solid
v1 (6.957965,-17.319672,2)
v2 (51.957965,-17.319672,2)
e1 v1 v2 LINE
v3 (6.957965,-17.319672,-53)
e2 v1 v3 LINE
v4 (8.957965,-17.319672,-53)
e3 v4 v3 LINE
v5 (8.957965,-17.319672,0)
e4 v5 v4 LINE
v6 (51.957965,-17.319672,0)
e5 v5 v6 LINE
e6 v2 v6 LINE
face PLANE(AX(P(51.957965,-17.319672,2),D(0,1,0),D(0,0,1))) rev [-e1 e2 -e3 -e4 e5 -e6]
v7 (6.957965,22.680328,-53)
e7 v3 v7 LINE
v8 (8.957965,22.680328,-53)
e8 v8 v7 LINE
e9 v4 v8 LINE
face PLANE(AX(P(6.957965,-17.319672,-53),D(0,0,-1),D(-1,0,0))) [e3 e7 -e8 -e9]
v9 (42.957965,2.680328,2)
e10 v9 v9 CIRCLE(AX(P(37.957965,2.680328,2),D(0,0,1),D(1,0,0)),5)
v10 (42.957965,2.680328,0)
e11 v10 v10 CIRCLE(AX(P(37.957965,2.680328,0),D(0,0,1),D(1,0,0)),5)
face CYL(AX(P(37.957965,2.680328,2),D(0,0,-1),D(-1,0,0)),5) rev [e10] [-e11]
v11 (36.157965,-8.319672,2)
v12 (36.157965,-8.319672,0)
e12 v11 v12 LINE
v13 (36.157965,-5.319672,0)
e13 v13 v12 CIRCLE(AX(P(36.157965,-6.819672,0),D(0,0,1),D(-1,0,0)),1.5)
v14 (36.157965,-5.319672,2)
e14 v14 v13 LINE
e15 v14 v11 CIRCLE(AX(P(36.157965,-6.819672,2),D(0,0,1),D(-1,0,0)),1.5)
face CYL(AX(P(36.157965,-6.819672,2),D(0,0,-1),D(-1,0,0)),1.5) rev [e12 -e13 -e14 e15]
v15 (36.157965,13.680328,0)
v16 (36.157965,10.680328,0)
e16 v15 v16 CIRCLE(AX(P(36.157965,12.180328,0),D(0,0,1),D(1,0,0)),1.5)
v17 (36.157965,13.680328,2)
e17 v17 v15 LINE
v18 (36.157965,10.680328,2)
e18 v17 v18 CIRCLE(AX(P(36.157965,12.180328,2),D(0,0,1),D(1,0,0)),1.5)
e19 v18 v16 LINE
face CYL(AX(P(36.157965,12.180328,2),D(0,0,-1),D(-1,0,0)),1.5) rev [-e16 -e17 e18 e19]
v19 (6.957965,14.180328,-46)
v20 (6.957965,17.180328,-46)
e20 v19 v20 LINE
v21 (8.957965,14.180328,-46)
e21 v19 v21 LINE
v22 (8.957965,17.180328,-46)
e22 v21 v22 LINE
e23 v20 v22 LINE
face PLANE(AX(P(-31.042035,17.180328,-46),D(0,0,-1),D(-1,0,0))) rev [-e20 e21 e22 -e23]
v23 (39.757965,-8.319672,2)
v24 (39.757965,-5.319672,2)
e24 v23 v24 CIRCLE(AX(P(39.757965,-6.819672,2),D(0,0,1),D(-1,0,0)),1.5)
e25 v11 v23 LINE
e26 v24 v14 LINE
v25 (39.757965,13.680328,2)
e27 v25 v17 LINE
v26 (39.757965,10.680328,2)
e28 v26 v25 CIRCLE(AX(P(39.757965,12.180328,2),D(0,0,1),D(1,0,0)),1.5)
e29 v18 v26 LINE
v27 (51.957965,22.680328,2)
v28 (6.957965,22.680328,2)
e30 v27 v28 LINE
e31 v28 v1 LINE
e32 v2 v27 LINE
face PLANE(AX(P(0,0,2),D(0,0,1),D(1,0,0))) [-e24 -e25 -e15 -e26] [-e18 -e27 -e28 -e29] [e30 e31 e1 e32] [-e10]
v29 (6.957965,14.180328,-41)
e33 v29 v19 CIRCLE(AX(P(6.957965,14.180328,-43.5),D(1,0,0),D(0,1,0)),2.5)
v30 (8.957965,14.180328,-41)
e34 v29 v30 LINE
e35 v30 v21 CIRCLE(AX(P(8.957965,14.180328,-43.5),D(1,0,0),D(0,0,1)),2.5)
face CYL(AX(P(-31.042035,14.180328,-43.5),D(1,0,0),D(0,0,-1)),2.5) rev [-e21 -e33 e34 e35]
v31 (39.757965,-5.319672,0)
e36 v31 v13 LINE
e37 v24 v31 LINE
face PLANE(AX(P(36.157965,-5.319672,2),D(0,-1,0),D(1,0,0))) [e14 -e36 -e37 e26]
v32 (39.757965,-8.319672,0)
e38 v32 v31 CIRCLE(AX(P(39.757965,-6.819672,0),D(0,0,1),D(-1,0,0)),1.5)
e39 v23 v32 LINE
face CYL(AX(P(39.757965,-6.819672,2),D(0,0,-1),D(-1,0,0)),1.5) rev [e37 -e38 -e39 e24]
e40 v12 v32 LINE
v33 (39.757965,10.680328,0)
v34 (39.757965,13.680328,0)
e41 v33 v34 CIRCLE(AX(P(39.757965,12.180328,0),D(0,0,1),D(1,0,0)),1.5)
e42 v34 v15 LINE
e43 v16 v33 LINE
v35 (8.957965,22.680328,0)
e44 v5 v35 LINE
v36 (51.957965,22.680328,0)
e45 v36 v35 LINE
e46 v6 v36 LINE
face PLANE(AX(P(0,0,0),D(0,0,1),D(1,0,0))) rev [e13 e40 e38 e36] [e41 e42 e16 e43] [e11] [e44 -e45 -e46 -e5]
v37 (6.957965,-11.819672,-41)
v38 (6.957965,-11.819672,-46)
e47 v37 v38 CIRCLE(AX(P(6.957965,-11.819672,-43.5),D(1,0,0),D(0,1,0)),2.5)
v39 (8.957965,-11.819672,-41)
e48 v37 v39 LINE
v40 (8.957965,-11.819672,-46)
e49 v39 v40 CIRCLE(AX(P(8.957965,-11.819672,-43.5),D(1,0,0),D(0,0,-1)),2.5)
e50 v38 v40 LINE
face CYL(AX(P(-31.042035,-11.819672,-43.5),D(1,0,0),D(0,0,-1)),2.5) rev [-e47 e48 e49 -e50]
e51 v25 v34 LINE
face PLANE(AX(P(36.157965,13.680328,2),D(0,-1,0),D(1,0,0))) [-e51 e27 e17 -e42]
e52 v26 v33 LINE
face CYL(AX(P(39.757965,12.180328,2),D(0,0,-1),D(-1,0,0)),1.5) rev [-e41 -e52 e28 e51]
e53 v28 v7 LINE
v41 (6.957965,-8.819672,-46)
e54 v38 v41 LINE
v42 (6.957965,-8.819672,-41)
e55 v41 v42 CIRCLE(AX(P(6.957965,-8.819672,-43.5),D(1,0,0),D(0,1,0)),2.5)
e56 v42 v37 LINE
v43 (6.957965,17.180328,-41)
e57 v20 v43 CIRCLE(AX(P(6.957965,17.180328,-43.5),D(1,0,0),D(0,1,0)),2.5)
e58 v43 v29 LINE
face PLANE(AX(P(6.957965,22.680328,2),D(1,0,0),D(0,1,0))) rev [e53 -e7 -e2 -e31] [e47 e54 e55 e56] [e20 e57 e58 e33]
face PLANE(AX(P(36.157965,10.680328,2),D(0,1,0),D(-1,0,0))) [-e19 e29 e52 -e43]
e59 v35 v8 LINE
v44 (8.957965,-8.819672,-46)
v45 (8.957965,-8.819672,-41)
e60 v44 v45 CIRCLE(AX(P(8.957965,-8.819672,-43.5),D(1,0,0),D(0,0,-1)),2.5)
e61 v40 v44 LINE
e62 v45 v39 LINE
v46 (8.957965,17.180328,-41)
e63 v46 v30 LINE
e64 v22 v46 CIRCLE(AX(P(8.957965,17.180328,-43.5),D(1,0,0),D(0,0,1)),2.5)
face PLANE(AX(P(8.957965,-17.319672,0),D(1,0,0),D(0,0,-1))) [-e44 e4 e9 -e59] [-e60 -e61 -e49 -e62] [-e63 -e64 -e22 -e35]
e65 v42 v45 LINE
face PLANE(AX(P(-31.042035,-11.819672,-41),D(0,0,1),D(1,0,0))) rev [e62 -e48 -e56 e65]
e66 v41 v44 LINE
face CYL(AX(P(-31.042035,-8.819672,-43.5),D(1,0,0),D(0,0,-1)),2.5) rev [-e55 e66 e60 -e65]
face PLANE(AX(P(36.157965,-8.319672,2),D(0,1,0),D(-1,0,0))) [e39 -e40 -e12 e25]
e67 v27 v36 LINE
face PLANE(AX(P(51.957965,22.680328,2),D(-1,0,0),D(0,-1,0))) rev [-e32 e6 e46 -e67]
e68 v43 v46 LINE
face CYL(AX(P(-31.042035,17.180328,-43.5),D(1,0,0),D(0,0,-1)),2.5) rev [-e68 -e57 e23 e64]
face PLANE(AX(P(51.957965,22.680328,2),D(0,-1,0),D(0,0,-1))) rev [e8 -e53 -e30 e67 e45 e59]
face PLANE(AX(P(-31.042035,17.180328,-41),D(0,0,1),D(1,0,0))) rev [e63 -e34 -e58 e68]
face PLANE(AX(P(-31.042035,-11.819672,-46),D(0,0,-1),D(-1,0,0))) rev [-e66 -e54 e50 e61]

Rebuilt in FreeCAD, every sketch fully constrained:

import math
import FreeCAD as App
import Part
import Sketcher

V = App.Vector
Q = App.Units.Quantity


def add_polygon(sketch, points):
    """Adds a closed chain of lines whose ends are joined by coincident constraints."""
    first, n = sketch.GeometryCount, len(points)
    for a, b in zip(points, points[1:] + points[:1]):
        sketch.addGeometry(Part.LineSegment(App.Vector(*a, 0), App.Vector(*b, 0)), False)
    for i in range(n):
        sketch.addConstraint(Sketcher.Constraint("Coincident", first + i, 2, first + (i + 1) % n, 1))

doc = App.newDocument("Part")
body = doc.addObject("PartDesign::Body", "Body")

sketch1 = doc.addObject("Sketcher::SketchObject", "Sketch")
body.addObject(sketch1)
sketch1.AttachmentSupport = (doc.XY_Plane, [""])
sketch1.MapMode = "FlatFace"
add_polygon(sketch1, [(7, 22.7), (7, -17.3), (52, -17.3), (52, 22.7)])
sketch1.addGeometry(Part.LineSegment(V(39.8, -8.3, 0), V(36.2, -8.3, 0)), False)
sketch1.addGeometry(Part.ArcOfCircle(Part.Circle(V(36.2, -6.8, 0), V(0, 0, 1), 1.5), math.radians(90), math.radians(270)), False)
sketch1.addGeometry(Part.LineSegment(V(36.2, -5.3, 0), V(39.8, -5.3, 0)), False)
sketch1.addGeometry(Part.ArcOfCircle(Part.Circle(V(39.8, -6.8, 0), V(0, 0, 1), 1.5), math.radians(-90), math.radians(90)), False)
sketch1.addGeometry(Part.ArcOfCircle(Part.Circle(V(36.2, 12.2, 0), V(0, 0, 1), 1.5), math.radians(90), math.radians(270)), False)
sketch1.addGeometry(Part.LineSegment(V(36.2, 13.7, 0), V(39.8, 13.7, 0)), False)
sketch1.addGeometry(Part.ArcOfCircle(Part.Circle(V(39.8, 12.2, 0), V(0, 0, 1), 1.5), math.radians(-90), math.radians(90)), False)
sketch1.addGeometry(Part.LineSegment(V(39.8, 10.7, 0), V(36.2, 10.7, 0)), False)
sketch1.addGeometry(Part.Circle(V(38, 2.7, 0), V(0, 0, 1), 5), False)
sketch1.addConstraint([
    Sketcher.Constraint("Tangent", 4, 2, 5, 2),
    Sketcher.Constraint("Tangent", 5, 1, 6, 1),
    Sketcher.Constraint("Tangent", 6, 2, 7, 2),
    Sketcher.Constraint("Tangent", 7, 1, 4, 1),
    Sketcher.Constraint("Tangent", 8, 1, 9, 1),
    Sketcher.Constraint("Tangent", 9, 2, 10, 2),
    Sketcher.Constraint("Tangent", 10, 1, 11, 1),
    Sketcher.Constraint("Tangent", 11, 2, 8, 2),
    Sketcher.Constraint("Vertical", 0),
    Sketcher.Constraint("Horizontal", 1),
    Sketcher.Constraint("Vertical", 2),
    Sketcher.Constraint("Horizontal", 3),
    Sketcher.Constraint("Horizontal", 4),
    Sketcher.Constraint("Horizontal", 6),
    Sketcher.Constraint("Horizontal", 9),
    Sketcher.Constraint("Horizontal", 11),
    Sketcher.Constraint("Equal", 7, 8),
    Sketcher.Constraint("Vertical", 5, 3, 8, 3),
    Sketcher.Constraint("Vertical", 7, 3, 10, 3),
    Sketcher.Constraint("Diameter", 12, Q("10 mm")),
    Sketcher.Constraint("Radius", 5, Q("1.5 mm")),
    Sketcher.Constraint("DistanceX", 1, 1, 1, 2, Q("45 mm")),
    Sketcher.Constraint("DistanceY", 0, 2, 0, 1, Q("40 mm")),
    Sketcher.Constraint("DistanceX", 4, 2, 4, 1, Q("3.6 mm")),
    Sketcher.Constraint("DistanceY", 5, 3, 8, 3, Q("19 mm")),
    Sketcher.Constraint("DistanceX", 0, 2, 12, 3, Q("31 mm")),
    Sketcher.Constraint("DistanceY", 0, 2, 12, 3, Q("20 mm")),
    Sketcher.Constraint("DistanceY", 4, 2, 12, 3, Q("11 mm")),
    Sketcher.Constraint("DistanceX", 12, 3, 7, 3, Q("1.8 mm")),
    Sketcher.Constraint("DistanceX", -1, 1, 5, 3, Q("36.157965 mm")),
    Sketcher.Constraint("DistanceY", 5, 3, -1, 1, Q("6.819672 mm")),
])
pad1 = doc.addObject("PartDesign::Pad", "Pad")
body.addObject(pad1)
pad1.Profile = sketch1
pad1.Length = 2

sketch2 = doc.addObject("Sketcher::SketchObject", "Sketch001")
body.addObject(sketch2)
sketch2.AttachmentSupport = (doc.XZ_Plane, [""])
sketch2.MapMode = "FlatFace"
sketch2.AttachmentOffset = App.Placement(V(0, 0, -22.680328), App.Rotation())
add_polygon(sketch2, [(7, -53), (7, 0), (9, 0), (9, -53)])
sketch2.addConstraint([
    Sketcher.Constraint("Vertical", 0),
    Sketcher.Constraint("Horizontal", 1),
    Sketcher.Constraint("Vertical", 2),
    Sketcher.Constraint("Horizontal", 3),
    Sketcher.Constraint("PointOnObject", 0, 2, -1),
    Sketcher.Constraint("DistanceX", 1, 1, 1, 2, Q("2 mm")),
    Sketcher.Constraint("DistanceY", 0, 1, 0, 2, Q("53 mm")),
    Sketcher.Constraint("DistanceX", -1, 1, 0, 2, Q("6.957965 mm")),
])
pad2 = doc.addObject("PartDesign::Pad", "Pad001")
body.addObject(pad2)
pad2.Profile = sketch2
pad2.Length = 40

sketch3 = doc.addObject("Sketcher::SketchObject", "Sketch002")
body.addObject(sketch3)
sketch3.AttachmentSupport = (doc.YZ_Plane, [""])
sketch3.MapMode = "FlatFace"
sketch3.AttachmentOffset = App.Placement(V(0, 0, 8.957965), App.Rotation())
sketch3.addGeometry([
    Part.LineSegment(V(-8.8, -41, 0), V(-11.8, -41, 0)),
    Part.ArcOfCircle(Part.Circle(V(-11.8, -43.5, 0), V(0, 0, 1), 2.5), math.radians(90), math.radians(270)),
    Part.LineSegment(V(-11.8, -46, 0), V(-8.8, -46, 0)),
    Part.ArcOfCircle(Part.Circle(V(-8.8, -43.5, 0), V(0, 0, 1), 2.5), math.radians(-90), math.radians(90)),
    Part.LineSegment(V(17.2, -41, 0), V(14.2, -41, 0)),
    Part.ArcOfCircle(Part.Circle(V(14.2, -43.5, 0), V(0, 0, 1), 2.5), math.radians(90), math.radians(270)),
    Part.LineSegment(V(14.2, -46, 0), V(17.2, -46, 0)),
    Part.ArcOfCircle(Part.Circle(V(17.2, -43.5, 0), V(0, 0, 1), 2.5), math.radians(-90), math.radians(90)),
], False)
sketch3.addConstraint([
    Sketcher.Constraint("Tangent", 0, 2, 1, 1),
    Sketcher.Constraint("Tangent", 1, 2, 2, 1),
    Sketcher.Constraint("Tangent", 2, 2, 3, 1),
    Sketcher.Constraint("Tangent", 3, 2, 0, 1),
    Sketcher.Constraint("Tangent", 4, 2, 5, 1),
    Sketcher.Constraint("Tangent", 5, 2, 6, 1),
    Sketcher.Constraint("Tangent", 6, 2, 7, 1),
    Sketcher.Constraint("Tangent", 7, 2, 4, 1),
    Sketcher.Constraint("Horizontal", 0),
    Sketcher.Constraint("Horizontal", 2),
    Sketcher.Constraint("Horizontal", 4),
    Sketcher.Constraint("Horizontal", 6),
    Sketcher.Constraint("Equal", 3, 5),
    Sketcher.Constraint("Horizontal", 3, 3, 5, 3),
    Sketcher.Constraint("Equal", 2, 4),
    Sketcher.Constraint("Radius", 1, Q("2.5 mm")),
    Sketcher.Constraint("DistanceX", 0, 2, 0, 1, Q("3 mm")),
    Sketcher.Constraint("DistanceY", 0, 2, -1, 1, Q("41 mm")),
    Sketcher.Constraint("DistanceX", 3, 3, 5, 3, Q("23 mm")),
    Sketcher.Constraint("DistanceX", 1, 3, -1, 1, Q("11.819672 mm")),
])
pocket1 = doc.addObject("PartDesign::Pocket", "Pocket")
body.addObject(pocket1)
pocket1.Profile = sketch3
pocket1.Length = 40

doc.recompute()
